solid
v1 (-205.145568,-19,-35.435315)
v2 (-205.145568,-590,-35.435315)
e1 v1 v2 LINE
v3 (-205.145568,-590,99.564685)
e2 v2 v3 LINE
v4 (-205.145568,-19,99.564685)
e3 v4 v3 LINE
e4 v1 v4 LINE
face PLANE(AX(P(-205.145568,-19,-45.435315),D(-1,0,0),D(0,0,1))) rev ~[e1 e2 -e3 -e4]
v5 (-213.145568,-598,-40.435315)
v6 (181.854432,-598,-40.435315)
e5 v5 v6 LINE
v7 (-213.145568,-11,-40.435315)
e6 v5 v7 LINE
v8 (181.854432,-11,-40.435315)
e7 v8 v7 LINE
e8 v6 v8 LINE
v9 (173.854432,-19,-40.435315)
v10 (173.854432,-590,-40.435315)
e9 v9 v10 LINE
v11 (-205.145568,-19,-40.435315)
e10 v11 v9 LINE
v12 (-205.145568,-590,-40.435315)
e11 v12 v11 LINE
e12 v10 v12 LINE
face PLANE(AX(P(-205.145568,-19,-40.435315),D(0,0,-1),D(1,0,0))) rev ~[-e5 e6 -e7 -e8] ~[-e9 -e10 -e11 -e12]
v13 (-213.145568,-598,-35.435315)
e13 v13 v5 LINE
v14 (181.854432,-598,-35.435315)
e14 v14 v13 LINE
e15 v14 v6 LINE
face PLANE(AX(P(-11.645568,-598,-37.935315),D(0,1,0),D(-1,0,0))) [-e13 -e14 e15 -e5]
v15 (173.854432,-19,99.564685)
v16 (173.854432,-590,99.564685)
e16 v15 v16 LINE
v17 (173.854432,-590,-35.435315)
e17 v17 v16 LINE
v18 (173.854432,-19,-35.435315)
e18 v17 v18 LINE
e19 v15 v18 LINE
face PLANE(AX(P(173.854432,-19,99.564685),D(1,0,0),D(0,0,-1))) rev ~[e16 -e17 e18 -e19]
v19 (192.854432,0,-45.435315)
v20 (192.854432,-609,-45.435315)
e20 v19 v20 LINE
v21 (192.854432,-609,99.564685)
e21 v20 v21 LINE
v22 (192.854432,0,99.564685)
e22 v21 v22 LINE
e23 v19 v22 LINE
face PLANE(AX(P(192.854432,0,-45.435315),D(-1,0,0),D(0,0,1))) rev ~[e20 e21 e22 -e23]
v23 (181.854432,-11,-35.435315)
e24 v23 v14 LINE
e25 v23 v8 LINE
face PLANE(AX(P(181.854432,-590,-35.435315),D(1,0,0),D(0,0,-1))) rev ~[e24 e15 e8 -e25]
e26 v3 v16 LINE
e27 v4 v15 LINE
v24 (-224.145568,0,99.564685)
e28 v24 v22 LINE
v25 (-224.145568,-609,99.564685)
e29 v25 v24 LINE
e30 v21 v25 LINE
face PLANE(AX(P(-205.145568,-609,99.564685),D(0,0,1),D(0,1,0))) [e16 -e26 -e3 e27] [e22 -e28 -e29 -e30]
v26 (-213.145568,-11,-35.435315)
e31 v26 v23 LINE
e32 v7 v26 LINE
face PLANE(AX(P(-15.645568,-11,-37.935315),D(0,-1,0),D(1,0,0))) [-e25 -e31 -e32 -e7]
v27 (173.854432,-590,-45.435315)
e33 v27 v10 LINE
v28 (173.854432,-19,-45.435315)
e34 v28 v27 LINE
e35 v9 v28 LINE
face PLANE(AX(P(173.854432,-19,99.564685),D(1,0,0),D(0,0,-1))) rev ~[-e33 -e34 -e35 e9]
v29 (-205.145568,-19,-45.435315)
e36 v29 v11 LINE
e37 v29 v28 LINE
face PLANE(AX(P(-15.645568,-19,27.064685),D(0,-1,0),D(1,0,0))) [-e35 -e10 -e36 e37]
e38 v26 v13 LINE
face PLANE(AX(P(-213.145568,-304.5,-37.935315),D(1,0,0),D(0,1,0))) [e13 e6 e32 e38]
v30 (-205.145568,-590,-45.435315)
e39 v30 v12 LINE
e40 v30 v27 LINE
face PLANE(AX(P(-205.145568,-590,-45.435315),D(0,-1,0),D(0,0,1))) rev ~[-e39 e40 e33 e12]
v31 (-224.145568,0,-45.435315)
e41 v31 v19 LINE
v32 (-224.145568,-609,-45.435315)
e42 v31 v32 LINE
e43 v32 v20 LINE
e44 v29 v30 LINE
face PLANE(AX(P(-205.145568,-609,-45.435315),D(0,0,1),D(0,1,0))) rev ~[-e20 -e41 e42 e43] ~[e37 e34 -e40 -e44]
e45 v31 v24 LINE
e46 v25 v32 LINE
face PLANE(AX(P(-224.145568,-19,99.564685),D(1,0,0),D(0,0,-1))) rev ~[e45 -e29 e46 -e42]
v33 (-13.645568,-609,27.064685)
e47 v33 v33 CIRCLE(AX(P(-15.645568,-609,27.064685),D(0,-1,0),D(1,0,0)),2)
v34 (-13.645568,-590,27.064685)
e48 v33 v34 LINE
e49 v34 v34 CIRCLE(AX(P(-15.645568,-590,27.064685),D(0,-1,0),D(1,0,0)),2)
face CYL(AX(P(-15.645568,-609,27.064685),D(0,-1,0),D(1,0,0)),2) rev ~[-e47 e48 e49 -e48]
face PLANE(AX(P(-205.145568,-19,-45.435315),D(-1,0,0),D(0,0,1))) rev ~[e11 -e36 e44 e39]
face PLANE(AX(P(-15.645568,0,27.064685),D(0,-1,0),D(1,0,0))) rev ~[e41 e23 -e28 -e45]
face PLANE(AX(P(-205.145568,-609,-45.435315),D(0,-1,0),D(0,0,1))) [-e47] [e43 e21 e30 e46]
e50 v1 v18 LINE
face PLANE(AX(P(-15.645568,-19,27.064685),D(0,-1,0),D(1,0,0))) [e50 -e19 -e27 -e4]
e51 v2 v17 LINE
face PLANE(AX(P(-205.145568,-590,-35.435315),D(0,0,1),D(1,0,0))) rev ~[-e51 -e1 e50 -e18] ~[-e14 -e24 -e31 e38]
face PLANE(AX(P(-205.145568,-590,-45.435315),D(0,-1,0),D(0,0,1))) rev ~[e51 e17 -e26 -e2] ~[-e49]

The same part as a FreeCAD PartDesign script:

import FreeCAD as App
import Part
import Sketcher

V = App.Vector
Q = App.Units.Quantity


def add_polygon(sketch, points):
    """Adds a closed chain of lines whose ends are joined by coincident constraints."""
    first, n = sketch.GeometryCount, len(points)
    for a, b in zip(points, points[1:] + points[:1]):
        sketch.addGeometry(Part.LineSegment(App.Vector(*a, 0), App.Vector(*b, 0)), False)
    for i in range(n):
        sketch.addConstraint(Sketcher.Constraint("Coincident", first + i, 2, first + (i + 1) % n, 1))

doc = App.newDocument("Part")
body = doc.addObject("PartDesign::Body", "Body")

# Sketch on XZ plane
sketch1 = body.newObject("Sketcher::SketchObject", "Sketch")
sketch1.AttachmentSupport = (doc.getObject("XZ_Plane"), [""])
sketch1.MapMode = "FlatFace"
add_polygon(sketch1, [(-224.145568, 99.564685), (-224.145568, -45.435315), (192.854432, -45.435315), (192.854432, 99.564685)])  # lines 0-3
sketch1.addConstraint([
    Sketcher.Constraint("Vertical", 0),
    Sketcher.Constraint("Horizontal", 1),
    Sketcher.Constraint("Vertical", 2),
    Sketcher.Constraint("Horizontal", 3),
    Sketcher.Constraint("DistanceX", 1, 1, 1, 2, Q("417 mm")),
    Sketcher.Constraint("DistanceY", 0, 2, 0, 1, Q("145 mm")),
    Sketcher.Constraint("DistanceX", 0, 2, -1, 1, Q("224.145568 mm")),
    Sketcher.Constraint("DistanceY", 0, 2, -1, 1, Q("45.435315 mm")),
])
pad1 = body.newObject("PartDesign::Pad", "Pad")
pad1.Profile = sketch1
pad1.Length = 19

# Sketch on XZ plane
sketch2 = body.newObject("Sketcher::SketchObject", "Sketch001")
sketch2.AttachmentSupport = (doc.getObject("XZ_Plane"), [""])
sketch2.MapMode = "FlatFace"
sketch2.AttachmentOffset = App.Placement(V(0, 0, 19), App.Rotation())
add_polygon(sketch2, [(-224.145568, 99.564685), (-224.145568, -45.435315), (-205.145568, -45.435315), (-205.145568, 99.564685)])  # lines 0-3
add_polygon(sketch2, [(173.854432, -45.435315), (192.854432, -45.435315), (192.854432, 99.564685), (173.854432, 99.564685)])  # lines 4-7
sketch2.addConstraint([
    Sketcher.Constraint("Vertical", 0),
    Sketcher.Constraint("Horizontal", 1),
    Sketcher.Constraint("Vertical", 2),
    Sketcher.Constraint("Horizontal", 3),
    Sketcher.Constraint("Horizontal", 4),
    Sketcher.Constraint("Vertical", 5),
    Sketcher.Constraint("Horizontal", 6),
    Sketcher.Constraint("Vertical", 7),
    Sketcher.Constraint("Horizontal", 1, 2, 4, 2),
    Sketcher.Constraint("Horizontal", 3, 2, 5, 2),
    Sketcher.Constraint("Equal", 3, 4),
    Sketcher.Constraint("DistanceX", 1, 1, 1, 2, Q("19 mm")),
    Sketcher.Constraint("DistanceY", 0, 2, 0, 1, Q("145 mm")),
    Sketcher.Constraint("DistanceX", 1, 2, 4, 2, Q("398 mm")),
    Sketcher.Constraint("DistanceX", 0, 2, -1, 1, Q("224.145568 mm")),
    Sketcher.Constraint("DistanceY", 0, 2, -1, 1, Q("45.435315 mm")),
])
pad2 = body.newObject("PartDesign::Pad", "Pad001")
pad2.Profile = sketch2
pad2.Length = 590

# Sketch on XZ plane
sketch3 = body.newObject("Sketcher::SketchObject", "Sketch002")
sketch3.AttachmentSupport = (doc.getObject("XZ_Plane"), [""])
sketch3.MapMode = "FlatFace"
sketch3.AttachmentOffset = App.Placement(V(0, 0, 19), App.Rotation())
add_polygon(sketch3, [(-205.145568, -35.435315), (-205.145568, -40.435315), (173.854432, -40.435315), (173.854432, -35.435315)])  # lines 0-3
sketch3.addConstraint([
    Sketcher.Constraint("Vertical", 0),
    Sketcher.Constraint("Horizontal", 1),
    Sketcher.Constraint("Vertical", 2),
    Sketcher.Constraint("Horizontal", 3),
    Sketcher.Constraint("DistanceX", 1, 1, 1, 2, Q("379 mm")),
    Sketcher.Constraint("DistanceY", 0, 2, 0, 1, Q("5 mm")),
    Sketcher.Constraint("DistanceX", 0, 2, -1, 1, Q("205.145568 mm")),
    Sketcher.Constraint("DistanceY", 0, 2, -1, 1, Q("40.435315 mm")),
])
pocket1 = body.newObject("PartDesign::Pocket", "Pocket")
pocket1.Profile = sketch3
pocket1.Length = 8

# Sketch on YZ plane
sketch4 = body.newObject("Sketcher::SketchObject", "Sketch003")
sketch4.AttachmentSupport = (doc.getObject("YZ_Plane"), [""])
sketch4.MapMode = "FlatFace"
sketch4.AttachmentOffset = App.Placement(V(0, 0, -205.145568), App.Rotation())
add_polygon(sketch4, [(-609, 99.564685), (-609, -45.435315), (-590, -45.435315), (-590, 99.564685)])  # lines 0-3
sketch4.addConstraint([
    Sketcher.Constraint("Vertical", 0),
    Sketcher.Constraint("Horizontal", 1),
    Sketcher.Constraint("Vertical", 2),
    Sketcher.Constraint("Horizontal", 3),
    Sketcher.Constraint("DistanceX", 1, 1, 1, 2, Q("19 mm")),
    Sketcher.Constraint("DistanceY", 0, 2, 0, 1, Q("145 mm")),
    Sketcher.Constraint("DistanceX", 0, 2, -1, 1, Q("609 mm")),
    Sketcher.Constraint("DistanceY", 0, 2, -1, 1, Q("45.435315 mm")),
])
pad3 = body.newObject("PartDesign::Pad", "Pad002")
pad3.Profile = sketch4
pad3.Length = 379

# Sketch on YZ plane
sketch5 = body.newObject("Sketcher::SketchObject", "Sketch004")
sketch5.AttachmentSupport = (doc.getObject("YZ_Plane"), [""])
sketch5.MapMode = "FlatFace"
sketch5.AttachmentOffset = App.Placement(V(0, 0, 173.854432), App.Rotation())
add_polygon(sketch5, [(-11, -35.435315), (-11, -40.435315), (-590, -40.435315), (-590, -35.435315)])  # lines 0-3
sketch5.addConstraint([
    Sketcher.Constraint("Vertical", 0),
    Sketcher.Constraint("Horizontal", 1),
    Sketcher.Constraint("Vertical", 2),
    Sketcher.Constraint("Horizontal", 3),
    Sketcher.Constraint("DistanceX", 1, 2, 1, 1, Q("579 mm")),
    Sketcher.Constraint("DistanceY", 0, 2, 0, 1, Q("5 mm")),
    Sketcher.Constraint("DistanceX", 0, 2, -1, 1, Q("11 mm")),
    Sketcher.Constraint("DistanceY", 0, 2, -1, 1, Q("40.435315 mm")),
])
pocket2 = body.newObject("PartDesign::Pocket", "Pocket001")
pocket2.Profile = sketch5
pocket2.Length = 8
pocket2.Reversed = True

# Sketch on XZ plane
sketch6 = body.newObject("Sketcher::SketchObject", "Sketch005")
sketch6.AttachmentSupport = (doc.getObject("XZ_Plane"), [""])
sketch6.MapMode = "FlatFace"
sketch6.AttachmentOffset = App.Placement(V(0, 0, 590), App.Rotation())
add_polygon(sketch6, [(181.854432, -35.435315), (181.854432, -40.435315), (-205.145568, -40.435315), (-205.145568, -35.435315)])  # lines 0-3
sketch6.addConstraint([
    Sketcher.Constraint("Vertical", 0),
    Sketcher.Constraint("Horizontal", 1),
    Sketcher.Constraint("Vertical", 2),
    Sketcher.Constraint("Horizontal", 3),
    Sketcher.Constraint("DistanceX", 1, 2, 1, 1, Q("387 mm")),
    Sketcher.Constraint("DistanceY", 0, 2, 0, 1, Q("5 mm")),
    Sketcher.Constraint("DistanceX", -1, 1, 0, 2, Q("181.854432 mm")),
    Sketcher.Constraint("DistanceY", 0, 2, -1, 1, Q("40.435315 mm")),
])
pocket3 = body.newObject("PartDesign::Pocket", "Pocket002")
pocket3.Profile = sketch6
pocket3.Length = 8
pocket3.Reversed = True

# Sketch on YZ plane
sketch7 = body.newObject("Sketcher::SketchObject", "Sketch006")
sketch7.AttachmentSupport = (doc.getObject("YZ_Plane"), [""])
sketch7.MapMode = "FlatFace"
sketch7.AttachmentOffset = App.Placement(V(0, 0, -205.145568), App.Rotation())
add_polygon(sketch7, [(-598, -35.435315), (-598, -40.435315), (-11, -40.435315), (-11, -35.435315)])  # lines 0-3
sketch7.addConstraint([
    Sketcher.Constraint("Vertical", 0),
    Sketcher.Constraint("Horizontal", 1),
    Sketcher.Constraint("Vertical", 2),
    Sketcher.Constraint("Horizontal", 3),
    Sketcher.Constraint("DistanceX", 1, 1, 1, 2, Q("587 mm")),
    Sketcher.Constraint("DistanceY", 0, 2, 0, 1, Q("5 mm")),
    Sketcher.Constraint("DistanceX", 0, 2, -1, 1, Q("598 mm")),
    Sketcher.Constraint("DistanceY", 0, 2, -1, 1, Q("40.435315 mm")),
])
pocket4 = body.newObject("PartDesign::Pocket", "Pocket003")
pocket4.Profile = sketch7
pocket4.Length = 8

# Sketch on XZ plane
sketch8 = body.newObject("Sketcher::SketchObject", "Sketch007")
sketch8.AttachmentSupport = (doc.getObject("XZ_Plane"), [""])
sketch8.MapMode = "FlatFace"
sketch8.AttachmentOffset = App.Placement(V(0, 0, 609), App.Rotation())
sketch8.addGeometry(Part.Circle(V(-15.645568, 27.064685, 0), V(0, 0, 1), 2), False)
sketch8.addConstraint([
    Sketcher.Constraint("Diameter", 0, Q("4 mm")),
    Sketcher.Constraint("DistanceX", 0, 3, -1, 1, Q("15.645568 mm")),
    Sketcher.Constraint("DistanceY", -1, 1, 0, 3, Q("27.064685 mm")),
])
pocket5 = body.newObject("PartDesign::Pocket", "Pocket004")
pocket5.Profile = sketch8
pocket5.Length = 19

doc.recompute()
